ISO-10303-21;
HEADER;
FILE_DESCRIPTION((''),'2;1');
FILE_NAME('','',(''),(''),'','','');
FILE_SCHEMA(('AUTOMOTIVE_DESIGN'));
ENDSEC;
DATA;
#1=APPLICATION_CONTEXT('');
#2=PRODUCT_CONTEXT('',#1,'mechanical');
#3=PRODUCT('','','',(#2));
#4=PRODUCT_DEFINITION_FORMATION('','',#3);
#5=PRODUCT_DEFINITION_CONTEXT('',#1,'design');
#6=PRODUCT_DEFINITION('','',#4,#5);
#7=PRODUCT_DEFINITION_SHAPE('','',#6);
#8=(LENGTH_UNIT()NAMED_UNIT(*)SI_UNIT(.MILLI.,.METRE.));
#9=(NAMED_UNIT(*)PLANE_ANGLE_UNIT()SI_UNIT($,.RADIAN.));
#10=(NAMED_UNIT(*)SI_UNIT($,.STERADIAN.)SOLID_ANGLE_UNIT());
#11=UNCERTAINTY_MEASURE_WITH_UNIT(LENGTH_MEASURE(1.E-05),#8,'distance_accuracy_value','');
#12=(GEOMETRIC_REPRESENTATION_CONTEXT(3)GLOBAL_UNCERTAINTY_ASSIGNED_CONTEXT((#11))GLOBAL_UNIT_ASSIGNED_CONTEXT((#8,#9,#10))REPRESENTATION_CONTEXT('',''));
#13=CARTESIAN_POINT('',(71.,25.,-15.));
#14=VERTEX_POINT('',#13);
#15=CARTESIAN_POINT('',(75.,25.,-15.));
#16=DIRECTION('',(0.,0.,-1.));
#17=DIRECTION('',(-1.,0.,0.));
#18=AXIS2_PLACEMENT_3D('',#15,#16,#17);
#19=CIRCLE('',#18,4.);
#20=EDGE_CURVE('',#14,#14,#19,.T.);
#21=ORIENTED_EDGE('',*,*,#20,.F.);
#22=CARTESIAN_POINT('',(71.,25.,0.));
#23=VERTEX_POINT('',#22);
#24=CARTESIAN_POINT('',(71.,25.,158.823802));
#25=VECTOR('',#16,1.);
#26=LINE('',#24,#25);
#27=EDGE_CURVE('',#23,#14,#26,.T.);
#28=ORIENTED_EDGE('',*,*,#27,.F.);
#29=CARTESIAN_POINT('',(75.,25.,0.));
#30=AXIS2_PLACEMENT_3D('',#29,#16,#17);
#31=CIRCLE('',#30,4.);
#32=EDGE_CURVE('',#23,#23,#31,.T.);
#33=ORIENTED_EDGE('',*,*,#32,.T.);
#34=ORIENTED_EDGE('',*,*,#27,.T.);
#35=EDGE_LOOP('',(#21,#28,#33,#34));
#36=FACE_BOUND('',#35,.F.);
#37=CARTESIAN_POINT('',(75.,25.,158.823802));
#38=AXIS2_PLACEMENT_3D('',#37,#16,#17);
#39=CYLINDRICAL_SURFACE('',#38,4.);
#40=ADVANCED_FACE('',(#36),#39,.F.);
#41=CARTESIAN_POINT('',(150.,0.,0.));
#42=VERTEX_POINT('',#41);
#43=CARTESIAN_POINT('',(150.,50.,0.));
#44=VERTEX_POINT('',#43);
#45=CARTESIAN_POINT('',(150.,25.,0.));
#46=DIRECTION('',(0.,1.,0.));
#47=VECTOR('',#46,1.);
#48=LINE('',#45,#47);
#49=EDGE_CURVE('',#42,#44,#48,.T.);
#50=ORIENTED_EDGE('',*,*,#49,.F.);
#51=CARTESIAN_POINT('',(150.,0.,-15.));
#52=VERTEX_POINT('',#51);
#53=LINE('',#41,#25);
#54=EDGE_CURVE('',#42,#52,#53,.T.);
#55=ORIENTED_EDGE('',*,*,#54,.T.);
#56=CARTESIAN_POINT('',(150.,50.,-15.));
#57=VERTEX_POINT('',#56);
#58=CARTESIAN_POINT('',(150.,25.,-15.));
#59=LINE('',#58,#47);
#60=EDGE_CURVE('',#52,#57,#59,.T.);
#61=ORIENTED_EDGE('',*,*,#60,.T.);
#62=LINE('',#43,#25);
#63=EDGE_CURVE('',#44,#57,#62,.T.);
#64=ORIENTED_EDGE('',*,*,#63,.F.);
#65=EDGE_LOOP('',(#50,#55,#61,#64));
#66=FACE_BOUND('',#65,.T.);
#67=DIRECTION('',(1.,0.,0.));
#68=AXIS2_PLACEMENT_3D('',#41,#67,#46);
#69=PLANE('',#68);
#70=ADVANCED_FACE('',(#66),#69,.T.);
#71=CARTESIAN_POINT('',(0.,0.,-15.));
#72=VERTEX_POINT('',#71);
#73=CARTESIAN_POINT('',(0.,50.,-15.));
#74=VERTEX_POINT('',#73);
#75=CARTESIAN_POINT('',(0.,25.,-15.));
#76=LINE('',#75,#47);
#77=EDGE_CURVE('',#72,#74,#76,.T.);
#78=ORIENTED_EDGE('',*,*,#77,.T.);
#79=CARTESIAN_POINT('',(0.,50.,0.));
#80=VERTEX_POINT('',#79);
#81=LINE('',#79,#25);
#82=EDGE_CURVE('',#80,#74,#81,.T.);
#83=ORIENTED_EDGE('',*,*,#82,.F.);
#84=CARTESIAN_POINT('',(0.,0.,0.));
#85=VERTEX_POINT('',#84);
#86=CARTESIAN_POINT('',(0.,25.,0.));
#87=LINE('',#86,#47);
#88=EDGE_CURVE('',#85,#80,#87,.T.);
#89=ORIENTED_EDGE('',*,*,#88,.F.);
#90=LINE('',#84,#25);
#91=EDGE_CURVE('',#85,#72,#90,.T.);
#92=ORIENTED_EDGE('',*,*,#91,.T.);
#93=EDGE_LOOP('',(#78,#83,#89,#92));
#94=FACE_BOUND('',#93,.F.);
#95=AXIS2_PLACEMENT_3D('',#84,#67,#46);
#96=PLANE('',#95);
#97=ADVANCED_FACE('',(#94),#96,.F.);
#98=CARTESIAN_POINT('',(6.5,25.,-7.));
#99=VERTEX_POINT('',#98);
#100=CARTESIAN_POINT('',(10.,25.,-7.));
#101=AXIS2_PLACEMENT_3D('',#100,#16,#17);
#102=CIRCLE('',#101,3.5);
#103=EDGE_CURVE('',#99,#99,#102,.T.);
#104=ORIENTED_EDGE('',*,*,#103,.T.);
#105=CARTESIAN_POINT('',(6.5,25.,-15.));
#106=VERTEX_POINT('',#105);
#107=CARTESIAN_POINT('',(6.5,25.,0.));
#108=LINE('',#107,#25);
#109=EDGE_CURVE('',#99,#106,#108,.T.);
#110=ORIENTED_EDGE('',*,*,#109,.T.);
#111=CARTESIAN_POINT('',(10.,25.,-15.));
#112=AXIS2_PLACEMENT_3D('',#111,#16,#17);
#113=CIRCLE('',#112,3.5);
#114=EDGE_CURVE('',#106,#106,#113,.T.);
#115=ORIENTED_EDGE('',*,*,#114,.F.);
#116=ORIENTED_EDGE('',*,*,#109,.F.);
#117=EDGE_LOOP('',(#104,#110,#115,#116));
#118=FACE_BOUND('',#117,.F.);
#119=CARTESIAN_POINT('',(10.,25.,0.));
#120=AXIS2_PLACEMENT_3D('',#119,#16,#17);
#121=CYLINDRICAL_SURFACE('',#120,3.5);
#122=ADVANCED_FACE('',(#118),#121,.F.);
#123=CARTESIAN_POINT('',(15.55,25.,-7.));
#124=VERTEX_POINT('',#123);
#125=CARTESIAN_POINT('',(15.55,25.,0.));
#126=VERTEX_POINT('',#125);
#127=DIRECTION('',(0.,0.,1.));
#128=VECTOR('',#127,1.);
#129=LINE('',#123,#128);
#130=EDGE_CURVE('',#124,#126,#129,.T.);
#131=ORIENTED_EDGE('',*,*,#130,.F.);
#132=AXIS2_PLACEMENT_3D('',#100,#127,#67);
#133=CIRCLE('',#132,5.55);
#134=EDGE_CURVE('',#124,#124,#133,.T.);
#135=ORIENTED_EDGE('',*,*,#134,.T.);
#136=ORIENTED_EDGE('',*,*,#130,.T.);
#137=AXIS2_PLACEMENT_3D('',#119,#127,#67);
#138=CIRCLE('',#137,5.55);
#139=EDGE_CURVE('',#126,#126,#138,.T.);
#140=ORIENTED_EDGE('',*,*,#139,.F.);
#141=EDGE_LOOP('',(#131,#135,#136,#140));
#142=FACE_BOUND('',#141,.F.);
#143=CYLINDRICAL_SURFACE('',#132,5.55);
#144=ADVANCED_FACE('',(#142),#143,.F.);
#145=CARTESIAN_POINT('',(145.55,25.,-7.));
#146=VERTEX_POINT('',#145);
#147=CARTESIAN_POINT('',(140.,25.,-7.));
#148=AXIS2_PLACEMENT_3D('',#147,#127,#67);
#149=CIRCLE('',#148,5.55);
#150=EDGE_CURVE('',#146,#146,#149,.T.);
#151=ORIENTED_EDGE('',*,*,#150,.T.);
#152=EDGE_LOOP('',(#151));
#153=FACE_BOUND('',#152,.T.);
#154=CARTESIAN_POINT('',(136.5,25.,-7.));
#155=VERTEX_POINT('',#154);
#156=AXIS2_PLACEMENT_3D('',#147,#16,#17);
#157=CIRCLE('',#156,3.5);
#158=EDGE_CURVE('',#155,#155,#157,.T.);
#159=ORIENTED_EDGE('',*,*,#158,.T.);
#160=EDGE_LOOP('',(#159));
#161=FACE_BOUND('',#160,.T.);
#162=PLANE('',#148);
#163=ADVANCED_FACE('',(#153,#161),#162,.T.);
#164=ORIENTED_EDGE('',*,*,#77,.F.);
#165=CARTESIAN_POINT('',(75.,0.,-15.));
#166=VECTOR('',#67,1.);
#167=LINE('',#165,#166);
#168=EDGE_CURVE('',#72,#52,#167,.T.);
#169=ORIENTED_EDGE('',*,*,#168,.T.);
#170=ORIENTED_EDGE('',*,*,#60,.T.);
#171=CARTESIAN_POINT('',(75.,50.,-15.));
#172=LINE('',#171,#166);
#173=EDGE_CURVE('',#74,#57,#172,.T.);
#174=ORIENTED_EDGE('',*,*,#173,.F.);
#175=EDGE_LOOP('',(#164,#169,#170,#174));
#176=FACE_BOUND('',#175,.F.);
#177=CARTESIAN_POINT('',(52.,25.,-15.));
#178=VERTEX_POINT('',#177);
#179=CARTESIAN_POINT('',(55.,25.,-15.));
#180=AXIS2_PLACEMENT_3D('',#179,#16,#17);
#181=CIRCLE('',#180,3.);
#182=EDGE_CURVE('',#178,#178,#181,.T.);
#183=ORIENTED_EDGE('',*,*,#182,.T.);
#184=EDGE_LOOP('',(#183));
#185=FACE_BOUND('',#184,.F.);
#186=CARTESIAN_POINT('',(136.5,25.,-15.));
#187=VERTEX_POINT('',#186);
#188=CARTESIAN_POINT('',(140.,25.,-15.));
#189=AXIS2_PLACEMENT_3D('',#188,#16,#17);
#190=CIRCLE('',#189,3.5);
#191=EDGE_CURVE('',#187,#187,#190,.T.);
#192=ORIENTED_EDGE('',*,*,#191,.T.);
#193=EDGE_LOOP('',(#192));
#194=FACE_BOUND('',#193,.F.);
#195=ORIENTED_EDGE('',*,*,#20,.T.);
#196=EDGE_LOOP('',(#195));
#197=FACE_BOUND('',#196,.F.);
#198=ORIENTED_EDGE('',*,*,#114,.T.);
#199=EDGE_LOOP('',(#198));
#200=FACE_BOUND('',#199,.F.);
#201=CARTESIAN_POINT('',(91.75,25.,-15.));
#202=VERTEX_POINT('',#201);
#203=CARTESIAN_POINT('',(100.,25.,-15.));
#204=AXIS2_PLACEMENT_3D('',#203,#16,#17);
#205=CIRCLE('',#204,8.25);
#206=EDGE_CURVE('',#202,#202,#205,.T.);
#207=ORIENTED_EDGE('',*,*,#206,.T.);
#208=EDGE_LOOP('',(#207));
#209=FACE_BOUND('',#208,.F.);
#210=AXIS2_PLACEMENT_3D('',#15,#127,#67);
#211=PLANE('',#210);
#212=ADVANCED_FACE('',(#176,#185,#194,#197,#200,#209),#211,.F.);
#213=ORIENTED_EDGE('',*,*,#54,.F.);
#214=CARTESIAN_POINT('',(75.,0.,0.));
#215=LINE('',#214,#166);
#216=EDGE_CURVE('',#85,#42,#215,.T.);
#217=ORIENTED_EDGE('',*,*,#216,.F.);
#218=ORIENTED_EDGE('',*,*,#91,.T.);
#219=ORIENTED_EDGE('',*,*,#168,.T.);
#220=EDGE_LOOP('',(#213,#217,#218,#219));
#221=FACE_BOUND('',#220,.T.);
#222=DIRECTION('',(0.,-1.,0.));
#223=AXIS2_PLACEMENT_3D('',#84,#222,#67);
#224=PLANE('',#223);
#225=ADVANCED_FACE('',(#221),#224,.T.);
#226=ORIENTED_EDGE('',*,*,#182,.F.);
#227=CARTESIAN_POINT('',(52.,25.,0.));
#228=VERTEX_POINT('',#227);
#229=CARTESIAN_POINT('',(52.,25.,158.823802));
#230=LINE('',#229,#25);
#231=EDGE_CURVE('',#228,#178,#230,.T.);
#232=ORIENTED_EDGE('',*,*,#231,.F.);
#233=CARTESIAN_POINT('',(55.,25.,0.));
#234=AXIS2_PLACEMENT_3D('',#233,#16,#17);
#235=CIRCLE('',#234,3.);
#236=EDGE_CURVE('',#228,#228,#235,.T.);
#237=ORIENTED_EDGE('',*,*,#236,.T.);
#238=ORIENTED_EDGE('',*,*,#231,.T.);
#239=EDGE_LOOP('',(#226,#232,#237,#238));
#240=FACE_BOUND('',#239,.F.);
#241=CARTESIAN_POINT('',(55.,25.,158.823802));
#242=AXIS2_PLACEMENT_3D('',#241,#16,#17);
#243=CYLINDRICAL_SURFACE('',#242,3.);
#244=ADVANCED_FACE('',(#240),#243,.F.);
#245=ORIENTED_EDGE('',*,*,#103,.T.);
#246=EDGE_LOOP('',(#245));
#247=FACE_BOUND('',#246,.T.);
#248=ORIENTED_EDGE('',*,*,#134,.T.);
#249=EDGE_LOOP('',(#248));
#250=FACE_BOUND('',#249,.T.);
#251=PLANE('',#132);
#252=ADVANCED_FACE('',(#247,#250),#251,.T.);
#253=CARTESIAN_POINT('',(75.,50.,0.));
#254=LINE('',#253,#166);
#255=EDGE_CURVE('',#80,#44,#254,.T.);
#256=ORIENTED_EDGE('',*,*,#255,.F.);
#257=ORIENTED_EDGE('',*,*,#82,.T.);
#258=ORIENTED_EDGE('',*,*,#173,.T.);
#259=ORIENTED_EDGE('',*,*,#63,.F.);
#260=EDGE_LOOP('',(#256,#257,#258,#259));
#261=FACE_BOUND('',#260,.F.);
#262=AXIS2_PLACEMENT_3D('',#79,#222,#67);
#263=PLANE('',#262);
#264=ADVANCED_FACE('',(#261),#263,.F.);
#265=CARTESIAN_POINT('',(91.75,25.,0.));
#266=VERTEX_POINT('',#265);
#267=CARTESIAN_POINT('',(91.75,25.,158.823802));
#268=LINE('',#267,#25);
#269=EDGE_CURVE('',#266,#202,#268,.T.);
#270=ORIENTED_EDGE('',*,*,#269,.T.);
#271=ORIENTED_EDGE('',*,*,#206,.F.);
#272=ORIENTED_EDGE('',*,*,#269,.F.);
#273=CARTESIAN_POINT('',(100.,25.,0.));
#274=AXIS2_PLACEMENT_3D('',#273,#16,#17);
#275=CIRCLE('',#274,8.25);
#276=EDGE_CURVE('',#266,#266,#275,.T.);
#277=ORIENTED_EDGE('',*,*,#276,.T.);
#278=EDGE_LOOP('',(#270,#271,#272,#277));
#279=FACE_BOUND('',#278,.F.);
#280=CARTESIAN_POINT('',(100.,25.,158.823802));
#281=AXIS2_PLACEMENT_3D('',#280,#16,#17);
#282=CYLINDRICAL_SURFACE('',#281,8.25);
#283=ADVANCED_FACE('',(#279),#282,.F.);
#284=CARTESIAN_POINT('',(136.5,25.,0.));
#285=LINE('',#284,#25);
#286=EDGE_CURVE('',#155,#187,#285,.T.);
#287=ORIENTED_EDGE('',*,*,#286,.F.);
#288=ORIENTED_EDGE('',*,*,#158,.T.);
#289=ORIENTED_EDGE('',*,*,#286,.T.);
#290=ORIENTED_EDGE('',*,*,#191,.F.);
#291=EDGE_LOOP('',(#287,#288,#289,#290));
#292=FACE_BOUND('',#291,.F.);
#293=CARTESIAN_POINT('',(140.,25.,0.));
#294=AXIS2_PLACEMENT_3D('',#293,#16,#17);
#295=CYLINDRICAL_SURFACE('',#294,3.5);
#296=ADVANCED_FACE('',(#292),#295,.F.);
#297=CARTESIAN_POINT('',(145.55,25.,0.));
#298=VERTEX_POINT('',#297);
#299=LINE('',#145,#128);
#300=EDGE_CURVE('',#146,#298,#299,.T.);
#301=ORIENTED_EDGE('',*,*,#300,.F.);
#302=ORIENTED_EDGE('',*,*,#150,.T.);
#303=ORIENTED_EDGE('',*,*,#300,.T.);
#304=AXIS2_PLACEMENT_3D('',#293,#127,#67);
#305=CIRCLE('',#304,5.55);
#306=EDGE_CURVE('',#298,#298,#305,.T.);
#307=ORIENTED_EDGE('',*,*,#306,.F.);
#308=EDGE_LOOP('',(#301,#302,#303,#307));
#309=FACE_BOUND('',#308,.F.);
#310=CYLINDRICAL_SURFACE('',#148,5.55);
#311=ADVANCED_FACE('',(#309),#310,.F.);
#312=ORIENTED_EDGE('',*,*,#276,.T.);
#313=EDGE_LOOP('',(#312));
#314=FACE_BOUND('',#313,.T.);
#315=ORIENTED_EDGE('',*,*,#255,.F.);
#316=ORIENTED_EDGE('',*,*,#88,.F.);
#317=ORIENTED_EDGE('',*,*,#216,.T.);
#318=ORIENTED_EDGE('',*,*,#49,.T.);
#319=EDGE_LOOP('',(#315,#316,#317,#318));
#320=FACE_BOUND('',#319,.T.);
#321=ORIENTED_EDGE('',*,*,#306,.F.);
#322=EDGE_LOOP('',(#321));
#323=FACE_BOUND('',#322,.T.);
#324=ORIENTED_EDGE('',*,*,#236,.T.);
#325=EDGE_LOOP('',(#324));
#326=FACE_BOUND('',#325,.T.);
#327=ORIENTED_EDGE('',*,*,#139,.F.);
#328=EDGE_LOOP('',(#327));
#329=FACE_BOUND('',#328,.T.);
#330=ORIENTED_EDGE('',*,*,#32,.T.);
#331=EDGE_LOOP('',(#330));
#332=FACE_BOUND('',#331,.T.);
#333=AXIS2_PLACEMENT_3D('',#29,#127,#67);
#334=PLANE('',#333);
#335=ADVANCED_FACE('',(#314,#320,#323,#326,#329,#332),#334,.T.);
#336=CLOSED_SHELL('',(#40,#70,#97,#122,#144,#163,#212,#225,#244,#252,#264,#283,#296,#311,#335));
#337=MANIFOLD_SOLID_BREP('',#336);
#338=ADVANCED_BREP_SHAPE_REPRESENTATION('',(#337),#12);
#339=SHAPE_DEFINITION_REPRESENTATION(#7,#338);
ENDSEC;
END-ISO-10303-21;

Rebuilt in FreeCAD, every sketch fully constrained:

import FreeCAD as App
import Part
import Sketcher


def add_polygon(sketch, points):
    """Adds a closed chain of lines whose ends are joined by coincident constraints."""
    first, n = sketch.GeometryCount, len(points)
    for a, b in zip(points, points[1:] + points[:1]):
        sketch.addGeometry(Part.LineSegment(App.Vector(*a, 0), App.Vector(*b, 0)), False)
    for i in range(n):
        sketch.addConstraint(Sketcher.Constraint("Coincident", first + i, 2, first + (i + 1) % n, 1))

doc = App.newDocument("Part")
body = doc.addObject("PartDesign::Body", "Body")

# Sketch on XY plane
sketch1 = doc.addObject("Sketcher::SketchObject", "Sketch")
body.addObject(sketch1)
sketch1.AttachmentSupport = (doc.XY_Plane, [""])
sketch1.MapMode = "FlatFace"
add_polygon(sketch1, [(0, 50), (0, 0), (150, 0), (150, 50)])  # lines 0-3
sketch1.addConstraint([
    Sketcher.Constraint("Vertical", 0),
    Sketcher.Constraint("Horizontal", 1),
    Sketcher.Constraint("Vertical", 2),
    Sketcher.Constraint("Horizontal", 3),
    Sketcher.Constraint("Coincident", 0, 2, -1, 1),
    Sketcher.Constraint("DistanceX", 1, 1, 1, 2, 150.0),
    Sketcher.Constraint("DistanceY", 0, 2, 0, 1, 50.0),
])
pad1 = doc.addObject("PartDesign::Pad", "Pad")
body.addObject(pad1)
pad1.Profile = sketch1
pad1.Length = 15
pad1.Reversed = True

# Sketch on XY plane
sketch2 = doc.addObject("Sketcher::SketchObject", "Sketch001")
body.addObject(sketch2)
sketch2.AttachmentSupport = (doc.XY_Plane, [""])
sketch2.MapMode = "FlatFace"
sketch2.addGeometry([
    Part.Circle(App.Vector(10, 25, 0), App.Vector(0, 0, 1), 3.5),
    Part.Circle(App.Vector(140, 25, 0), App.Vector(0, 0, 1), 3.5),
], False)
sketch2.addConstraint([
    Sketcher.Constraint("Equal", 0, 1),
    Sketcher.Constraint("Horizontal", 0, 3, 1, 3),
    Sketcher.Constraint("Diameter", 0, 7.0),
    Sketcher.Constraint("DistanceX", -1, 1, 0, 3, 10.0),
    Sketcher.Constraint("DistanceY", -1, 1, 0, 3, 25.0),
    Sketcher.Constraint("DistanceX", -1, 1, 1, 3, 140.0),
])
doc.recompute()
hole = doc.addObject("PartDesign::Hole", "Hole")
body.addObject(hole)
hole.Profile = sketch2
hole.ThreadType = "None"
hole.Diameter = 7
hole.DepthType = "ThroughAll"
hole.HoleCutType = "Counterbore"
hole.HoleCutDiameter = 11.1
hole.HoleCutDepth = 7

# Sketch on XY plane
sketch3 = doc.addObject("Sketcher::SketchObject", "Sketch002")
body.addObject(sketch3)
sketch3.AttachmentSupport = (doc.XY_Plane, [""])
sketch3.MapMode = "FlatFace"
sketch3.addGeometry(Part.Circle(App.Vector(55, 25, 0), App.Vector(0, 0, 1), 3), False)
sketch3.addConstraint([
    Sketcher.Constraint("Diameter", 0, 6.0),
    Sketcher.Constraint("DistanceX", -1, 1, 0, 3, 55.0),
    Sketcher.Constraint("DistanceY", -1, 1, 0, 3, 25.0),
])
doc.recompute()
hole2 = doc.addObject("PartDesign::Hole", "Hole001")
body.addObject(hole2)
hole2.Profile = sketch3
hole2.ThreadType = "None"
hole2.Diameter = 6
hole2.DepthType = "ThroughAll"

# Sketch on XY plane
sketch4 = doc.addObject("Sketcher::SketchObject", "Sketch003")
body.addObject(sketch4)
sketch4.AttachmentSupport = (doc.XY_Plane, [""])
sketch4.MapMode = "FlatFace"
sketch4.addGeometry(Part.Circle(App.Vector(75, 25, 0), App.Vector(0, 0, 1), 4), False)
sketch4.addConstraint([
    Sketcher.Constraint("Diameter", 0, 8.0),
    Sketcher.Constraint("DistanceX", -1, 1, 0, 3, 75.0),
    Sketcher.Constraint("DistanceY", -1, 1, 0, 3, 25.0),
])
doc.recompute()
hole3 = doc.addObject("PartDesign::Hole", "Hole002")
body.addObject(hole3)
hole3.Profile = sketch4
hole3.ThreadType = "None"
hole3.Diameter = 8
hole3.DepthType = "ThroughAll"

# Sketch on XY plane
sketch5 = doc.addObject("Sketcher::SketchObject", "Sketch004")
body.addObject(sketch5)
sketch5.AttachmentSupport = (doc.XY_Plane, [""])
sketch5.MapMode = "FlatFace"
sketch5.addGeometry(Part.Circle(App.Vector(100, 25, 0), App.Vector(0, 0, 1), 8), False)
sketch5.addConstraint([
    Sketcher.Constraint("Diameter", 0, 16.5),
    Sketcher.Constraint("DistanceX", -1, 1, 0, 3, 100.0),
    Sketcher.Constraint("DistanceY", -1, 1, 0, 3, 25.0),
])
doc.recompute()
hole4 = doc.addObject("PartDesign::Hole", "Hole003")
body.addObject(hole4)
hole4.Profile = sketch5
hole4.ThreadType = "None"
hole4.Diameter = 16.5
hole4.DepthType = "ThroughAll"

doc.recompute()
